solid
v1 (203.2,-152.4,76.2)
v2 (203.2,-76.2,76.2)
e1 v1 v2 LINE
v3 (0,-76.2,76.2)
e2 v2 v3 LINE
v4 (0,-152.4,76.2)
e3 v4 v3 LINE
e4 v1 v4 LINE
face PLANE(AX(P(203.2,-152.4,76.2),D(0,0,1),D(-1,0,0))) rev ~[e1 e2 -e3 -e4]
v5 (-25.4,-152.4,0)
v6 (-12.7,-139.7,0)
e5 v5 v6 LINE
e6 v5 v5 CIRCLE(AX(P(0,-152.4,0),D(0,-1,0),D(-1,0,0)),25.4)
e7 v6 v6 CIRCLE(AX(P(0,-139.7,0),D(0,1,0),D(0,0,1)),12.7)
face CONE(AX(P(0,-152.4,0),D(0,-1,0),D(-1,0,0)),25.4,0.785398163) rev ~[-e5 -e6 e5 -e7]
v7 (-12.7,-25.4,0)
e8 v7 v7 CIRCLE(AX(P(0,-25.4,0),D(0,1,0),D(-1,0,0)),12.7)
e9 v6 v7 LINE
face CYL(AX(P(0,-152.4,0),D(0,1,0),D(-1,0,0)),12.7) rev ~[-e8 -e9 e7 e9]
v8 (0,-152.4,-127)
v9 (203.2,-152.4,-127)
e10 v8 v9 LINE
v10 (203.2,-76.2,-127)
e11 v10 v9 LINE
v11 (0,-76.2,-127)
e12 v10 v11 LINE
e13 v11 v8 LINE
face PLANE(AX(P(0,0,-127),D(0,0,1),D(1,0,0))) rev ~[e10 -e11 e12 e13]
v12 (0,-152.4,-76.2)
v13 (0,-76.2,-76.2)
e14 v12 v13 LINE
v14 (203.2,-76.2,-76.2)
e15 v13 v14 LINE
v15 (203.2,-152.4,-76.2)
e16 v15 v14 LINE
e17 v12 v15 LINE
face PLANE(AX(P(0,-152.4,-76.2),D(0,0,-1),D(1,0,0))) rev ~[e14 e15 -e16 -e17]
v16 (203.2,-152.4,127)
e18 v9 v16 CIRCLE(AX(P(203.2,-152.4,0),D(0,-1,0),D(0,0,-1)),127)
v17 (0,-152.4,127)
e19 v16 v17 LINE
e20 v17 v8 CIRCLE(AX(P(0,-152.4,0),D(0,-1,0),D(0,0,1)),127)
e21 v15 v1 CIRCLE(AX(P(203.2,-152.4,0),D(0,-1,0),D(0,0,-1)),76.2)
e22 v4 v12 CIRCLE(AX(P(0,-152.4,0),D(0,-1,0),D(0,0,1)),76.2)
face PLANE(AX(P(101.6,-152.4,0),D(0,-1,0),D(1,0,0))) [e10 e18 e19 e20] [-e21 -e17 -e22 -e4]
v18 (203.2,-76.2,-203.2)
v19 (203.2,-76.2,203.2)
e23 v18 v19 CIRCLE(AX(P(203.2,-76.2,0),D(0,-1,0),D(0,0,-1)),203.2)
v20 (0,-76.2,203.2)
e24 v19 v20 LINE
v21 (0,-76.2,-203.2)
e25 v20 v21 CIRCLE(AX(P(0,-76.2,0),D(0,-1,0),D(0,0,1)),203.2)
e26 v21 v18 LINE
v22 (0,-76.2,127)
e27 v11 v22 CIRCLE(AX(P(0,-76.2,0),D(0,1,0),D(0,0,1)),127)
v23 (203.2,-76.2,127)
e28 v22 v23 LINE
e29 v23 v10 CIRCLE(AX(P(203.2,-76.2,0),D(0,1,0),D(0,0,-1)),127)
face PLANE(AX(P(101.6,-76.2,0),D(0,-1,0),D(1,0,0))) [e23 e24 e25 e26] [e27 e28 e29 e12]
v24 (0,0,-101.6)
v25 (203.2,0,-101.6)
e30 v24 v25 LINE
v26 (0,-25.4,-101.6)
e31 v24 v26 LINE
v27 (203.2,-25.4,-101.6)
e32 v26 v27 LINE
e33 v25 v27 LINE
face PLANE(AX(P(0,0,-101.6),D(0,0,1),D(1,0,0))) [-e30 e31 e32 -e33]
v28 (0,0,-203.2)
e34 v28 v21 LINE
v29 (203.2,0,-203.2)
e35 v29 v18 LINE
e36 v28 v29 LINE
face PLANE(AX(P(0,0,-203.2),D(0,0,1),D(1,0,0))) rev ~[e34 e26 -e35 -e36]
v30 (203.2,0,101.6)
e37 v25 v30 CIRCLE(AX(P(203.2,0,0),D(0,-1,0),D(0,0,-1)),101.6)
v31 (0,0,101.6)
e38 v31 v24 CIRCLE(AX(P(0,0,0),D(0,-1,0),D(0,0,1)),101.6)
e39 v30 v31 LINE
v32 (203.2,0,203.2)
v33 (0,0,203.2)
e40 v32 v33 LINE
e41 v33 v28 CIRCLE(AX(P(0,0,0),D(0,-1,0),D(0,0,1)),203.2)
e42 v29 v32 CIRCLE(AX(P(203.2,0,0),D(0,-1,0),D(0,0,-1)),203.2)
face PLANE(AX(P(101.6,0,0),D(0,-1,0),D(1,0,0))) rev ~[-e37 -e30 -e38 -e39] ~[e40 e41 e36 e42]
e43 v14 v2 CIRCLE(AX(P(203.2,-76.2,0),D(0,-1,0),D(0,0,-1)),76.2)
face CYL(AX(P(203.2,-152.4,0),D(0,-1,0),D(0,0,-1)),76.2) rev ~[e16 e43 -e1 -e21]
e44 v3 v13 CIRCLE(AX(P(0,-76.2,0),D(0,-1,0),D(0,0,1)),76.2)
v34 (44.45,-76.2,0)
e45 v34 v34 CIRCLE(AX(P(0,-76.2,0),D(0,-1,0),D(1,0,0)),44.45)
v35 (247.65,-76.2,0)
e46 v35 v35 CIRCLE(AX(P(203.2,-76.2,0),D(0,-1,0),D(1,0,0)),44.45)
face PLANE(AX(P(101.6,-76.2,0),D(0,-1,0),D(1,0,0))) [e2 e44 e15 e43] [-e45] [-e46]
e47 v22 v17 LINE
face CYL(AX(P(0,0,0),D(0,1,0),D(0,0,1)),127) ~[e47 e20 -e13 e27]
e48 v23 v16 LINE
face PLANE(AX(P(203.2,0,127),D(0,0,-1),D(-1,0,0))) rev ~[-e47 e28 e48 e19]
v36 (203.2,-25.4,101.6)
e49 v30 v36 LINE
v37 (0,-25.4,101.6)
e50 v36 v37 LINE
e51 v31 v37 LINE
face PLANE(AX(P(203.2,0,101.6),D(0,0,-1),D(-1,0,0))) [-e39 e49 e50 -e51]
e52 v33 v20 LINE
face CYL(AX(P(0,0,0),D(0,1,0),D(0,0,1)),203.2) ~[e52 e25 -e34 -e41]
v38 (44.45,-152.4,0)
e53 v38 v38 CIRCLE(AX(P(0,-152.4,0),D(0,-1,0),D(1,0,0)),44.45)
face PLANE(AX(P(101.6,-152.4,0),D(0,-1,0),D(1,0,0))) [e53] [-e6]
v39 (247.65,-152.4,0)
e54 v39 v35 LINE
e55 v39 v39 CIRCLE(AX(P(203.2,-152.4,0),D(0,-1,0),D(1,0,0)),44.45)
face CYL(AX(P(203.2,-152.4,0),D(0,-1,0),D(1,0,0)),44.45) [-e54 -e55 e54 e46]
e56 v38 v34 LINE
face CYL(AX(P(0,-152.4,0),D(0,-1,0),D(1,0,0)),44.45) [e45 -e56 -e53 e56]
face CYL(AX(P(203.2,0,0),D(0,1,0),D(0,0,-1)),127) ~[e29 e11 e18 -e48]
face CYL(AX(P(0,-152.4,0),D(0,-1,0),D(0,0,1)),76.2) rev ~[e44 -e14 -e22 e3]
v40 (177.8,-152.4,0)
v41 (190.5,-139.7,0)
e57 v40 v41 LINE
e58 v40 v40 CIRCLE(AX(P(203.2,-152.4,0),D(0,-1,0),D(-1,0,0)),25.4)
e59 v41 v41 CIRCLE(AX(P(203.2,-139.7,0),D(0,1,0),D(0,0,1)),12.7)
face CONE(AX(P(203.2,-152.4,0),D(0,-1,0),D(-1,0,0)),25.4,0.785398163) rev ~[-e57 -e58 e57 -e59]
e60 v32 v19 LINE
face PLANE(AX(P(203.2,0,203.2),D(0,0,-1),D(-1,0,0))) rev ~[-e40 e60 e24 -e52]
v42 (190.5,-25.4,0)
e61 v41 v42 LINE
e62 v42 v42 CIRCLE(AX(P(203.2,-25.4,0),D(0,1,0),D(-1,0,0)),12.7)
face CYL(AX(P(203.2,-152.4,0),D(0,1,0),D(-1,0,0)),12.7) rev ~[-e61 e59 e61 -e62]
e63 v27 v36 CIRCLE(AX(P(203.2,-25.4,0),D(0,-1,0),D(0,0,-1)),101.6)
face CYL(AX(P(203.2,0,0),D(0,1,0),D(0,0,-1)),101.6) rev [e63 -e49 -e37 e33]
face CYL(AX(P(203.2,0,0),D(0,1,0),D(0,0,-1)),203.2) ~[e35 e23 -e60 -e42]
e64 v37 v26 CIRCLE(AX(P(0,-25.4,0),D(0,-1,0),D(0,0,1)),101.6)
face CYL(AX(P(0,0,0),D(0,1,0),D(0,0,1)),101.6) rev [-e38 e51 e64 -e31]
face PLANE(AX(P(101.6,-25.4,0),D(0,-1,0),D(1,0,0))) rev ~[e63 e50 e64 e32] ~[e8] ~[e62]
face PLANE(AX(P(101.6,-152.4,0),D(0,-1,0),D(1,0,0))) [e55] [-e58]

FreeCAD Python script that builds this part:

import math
import FreeCAD as App
import Part
import Sketcher
Q = App.Units.Quantity

doc = App.newDocument("Part")
body = doc.addObject("PartDesign::Body", "Body")

sketch1 = body.newObject("Sketcher::SketchObject", "Sketch")
sketch1.AttachmentSupport = (doc.getObject("XZ_Plane"), [""])
sketch1.MapMode = "FlatFace"
sketch1.addGeometry(Part.LineSegment(App.Vector(203, 203, 0), App.Vector(0, 203, 0)), False)
sketch1.addGeometry(Part.ArcOfCircle(Part.Circle(App.Vector(0, 0, 0), App.Vector(0, 0, 1), 203), math.radians(90), math.radians(270)), False)
sketch1.addGeometry(Part.LineSegment(App.Vector(0, -203, 0), App.Vector(203, -203, 0)), False)
sketch1.addGeometry(Part.ArcOfCircle(Part.Circle(App.Vector(203, 0, 0), App.Vector(0, 0, 1), 203), math.radians(-90), math.radians(90)), False)
sketch1.addConstraint(Sketcher.Constraint("Tangent", 0, 2, 1, 1))
sketch1.addConstraint(Sketcher.Constraint("Tangent", 1, 2, 2, 1))
sketch1.addConstraint(Sketcher.Constraint("Tangent", 2, 2, 3, 1))
sketch1.addConstraint(Sketcher.Constraint("Tangent", 3, 2, 0, 1))
sketch1.addConstraint(Sketcher.Constraint("Horizontal", 0))
sketch1.addConstraint(Sketcher.Constraint("Horizontal", 2))
sketch1.addConstraint(Sketcher.Constraint("Coincident", 1, 3, -1, 1))
sketch1.addConstraint(Sketcher.Constraint("Radius", 1, Q("8 in")))
sketch1.addConstraint(Sketcher.Constraint("DistanceX", 0, 2, 0, 1, Q("8 in")))
pad1 = body.newObject("PartDesign::Pad", "Pad")
pad1.Profile = sketch1
pad1.Length = Q("3 in")

sketch2 = body.newObject("Sketcher::SketchObject", "Sketch001")
sketch2.AttachmentSupport = (doc.getObject("XZ_Plane"), [""])
sketch2.MapMode = "FlatFace"
sketch2.addGeometry(Part.LineSegment(App.Vector(203, 127, 0), App.Vector(0, 127, 0)), False)
sketch2.addGeometry(Part.ArcOfCircle(Part.Circle(App.Vector(0, 0, 0), App.Vector(0, 0, 1), 127), math.radians(90), math.radians(270)), False)
sketch2.addGeometry(Part.LineSegment(App.Vector(0, -127, 0), App.Vector(203, -127, 0)), False)
sketch2.addGeometry(Part.ArcOfCircle(Part.Circle(App.Vector(203, 0, 0), App.Vector(0, 0, 1), 127), math.radians(-90), math.radians(90)), False)
sketch2.addConstraint(Sketcher.Constraint("Tangent", 0, 2, 1, 1))
sketch2.addConstraint(Sketcher.Constraint("Tangent", 1, 2, 2, 1))
sketch2.addConstraint(Sketcher.Constraint("Tangent", 2, 2, 3, 1))
sketch2.addConstraint(Sketcher.Constraint("Tangent", 3, 2, 0, 1))
sketch2.addConstraint(Sketcher.Constraint("Horizontal", 0))
sketch2.addConstraint(Sketcher.Constraint("Horizontal", 2))
sketch2.addConstraint(Sketcher.Constraint("Coincident", 1, 3, -1, 1))
sketch2.addConstraint(Sketcher.Constraint("Radius", 1, Q("5 in")))
sketch2.addConstraint(Sketcher.Constraint("DistanceX", 0, 2, 0, 1, Q("8 in")))
pad2 = body.newObject("PartDesign::Pad", "Pad001")
pad2.Profile = sketch2
pad2.Length = Q("6 in")

sketch3 = body.newObject("Sketcher::SketchObject", "Sketch002")
sketch3.AttachmentSupport = (doc.getObject("XZ_Plane"), [""])
sketch3.MapMode = "FlatFace"
sketch3.AttachmentOffset = App.Placement(App.Vector(0, 0, 6 * 25.4), App.Rotation())
sketch3.addGeometry(Part.LineSegment(App.Vector(203, 76, 0), App.Vector(0, 76, 0)), False)
sketch3.addGeometry(Part.ArcOfCircle(Part.Circle(App.Vector(0, 0, 0), App.Vector(0, 0, 1), 76), math.radians(90), math.radians(270)), False)
sketch3.addGeometry(Part.LineSegment(App.Vector(0, -76, 0), App.Vector(203, -76, 0)), False)
sketch3.addGeometry(Part.ArcOfCircle(Part.Circle(App.Vector(203, 0, 0), App.Vector(0, 0, 1), 76), math.radians(-90), math.radians(90)), False)
sketch3.addGeometry(Part.Circle(App.Vector(0, 0, 0), App.Vector(0, 0, 1), 44), False)
sketch3.addGeometry(Part.Circle(App.Vector(203, 0, 0), App.Vector(0, 0, 1), 44), False)
sketch3.addConstraint(Sketcher.Constraint("Tangent", 0, 2, 1, 1))
sketch3.addConstraint(Sketcher.Constraint("Tangent", 1, 2, 2, 1))
sketch3.addConstraint(Sketcher.Constraint("Tangent", 2, 2, 3, 1))
sketch3.addConstraint(Sketcher.Constraint("Tangent", 3, 2, 0, 1))
sketch3.addConstraint(Sketcher.Constraint("Horizontal", 0))
sketch3.addConstraint(Sketcher.Constraint("Horizontal", 2))
sketch3.addConstraint(Sketcher.Constraint("Coincident", 1, 3, -1, 1))
sketch3.addConstraint(Sketcher.Constraint("Coincident", 4, 3, -1, 1))
sketch3.addConstraint(Sketcher.Constraint("Coincident", 5, 3, 3, 3))
sketch3.addConstraint(Sketcher.Constraint("Equal", 4, 5))
sketch3.addConstraint(Sketcher.Constraint("Radius", 1, Q("3 in")))
sketch3.addConstraint(Sketcher.Constraint("Diameter", 4, Q("3.5 in")))
sketch3.addConstraint(Sketcher.Constraint("DistanceX", 0, 2, 0, 1, Q("8 in")))
pocket1 = body.newObject("PartDesign::Pocket", "Pocket")
pocket1.Profile = sketch3
pocket1.Length = Q("3 in")

sketch4 = body.newObject("Sketcher::SketchObject", "Sketch003")
sketch4.AttachmentSupport = (doc.getObject("XZ_Plane"), [""])
sketch4.MapMode = "FlatFace"
sketch4.AttachmentOffset = App.Placement(App.Vector(0, 0, 6 * 25.4), App.Rotation())
sketch4.addGeometry(Part.Circle(App.Vector(0, 0, 0), App.Vector(0, 0, 1), 13), False)
sketch4.addGeometry(Part.Circle(App.Vector(203, 0, 0), App.Vector(0, 0, 1), 13), False)
sketch4.addConstraint(Sketcher.Constraint("Coincident", 0, 3, -1, 1))
sketch4.addConstraint(Sketcher.Constraint("Equal", 0, 1))
sketch4.addConstraint(Sketcher.Constraint("PointOnObject", 1, 3, -1))
sketch4.addConstraint(Sketcher.Constraint("Diameter", 0, Q("1 in")))
sketch4.addConstraint(Sketcher.Constraint("DistanceX", -1, 1, 1, 3, Q("8 in")))
doc.recompute()
hole = body.newObject("PartDesign::Hole", "Hole")
hole.Profile = sketch4
hole.ThreadType = "None"
hole.Diameter = Q("1 in")
hole.DepthType = "ThroughAll"
hole.HoleCutType = "Countersink"
hole.HoleCutDiameter = Q("2 in")
hole.HoleCutCountersinkAngle = 90

sketch5 = body.newObject("Sketcher::SketchObject", "Sketch004")
sketch5.AttachmentSupport = (doc.getObject("XZ_Plane"), [""])
sketch5.MapMode = "FlatFace"
sketch5.addGeometry(Part.LineSegment(App.Vector(203, 102, 0), App.Vector(0, 102, 0)), False)
sketch5.addGeometry(Part.ArcOfCircle(Part.Circle(App.Vector(0, 0, 0), App.Vector(0, 0, 1), 102), math.radians(90), math.radians(270)), False)
sketch5.addGeometry(Part.LineSegment(App.Vector(0, -102, 0), App.Vector(203, -102, 0)), False)
sketch5.addGeometry(Part.ArcOfCircle(Part.Circle(App.Vector(203, 0, 0), App.Vector(0, 0, 1), 102), math.radians(-90), math.radians(90)), False)
sketch5.addConstraint(Sketcher.Constraint("Tangent", 0, 2, 1, 1))
sketch5.addConstraint(Sketcher.Constraint("Tangent", 1, 2, 2, 1))
sketch5.addConstraint(Sketcher.Constraint("Tangent", 2, 2, 3, 1))
sketch5.addConstraint(Sketcher.Constraint("Tangent", 3, 2, 0, 1))
sketch5.addConstraint(Sketcher.Constraint("Horizontal", 0))
sketch5.addConstraint(Sketcher.Constraint("Horizontal", 2))
sketch5.addConstraint(Sketcher.Constraint("Coincident", 1, 3, -1, 1))
sketch5.addConstraint(Sketcher.Constraint("Radius", 1, Q("4 in")))
sketch5.addConstraint(Sketcher.Constraint("DistanceX", 0, 2, 0, 1, Q("8 in")))
pocket2 = body.newObject("PartDesign::Pocket", "Pocket001")
pocket2.Profile = sketch5
pocket2.Length = Q("1 in")
pocket2.Reversed = True

doc.recompute()
